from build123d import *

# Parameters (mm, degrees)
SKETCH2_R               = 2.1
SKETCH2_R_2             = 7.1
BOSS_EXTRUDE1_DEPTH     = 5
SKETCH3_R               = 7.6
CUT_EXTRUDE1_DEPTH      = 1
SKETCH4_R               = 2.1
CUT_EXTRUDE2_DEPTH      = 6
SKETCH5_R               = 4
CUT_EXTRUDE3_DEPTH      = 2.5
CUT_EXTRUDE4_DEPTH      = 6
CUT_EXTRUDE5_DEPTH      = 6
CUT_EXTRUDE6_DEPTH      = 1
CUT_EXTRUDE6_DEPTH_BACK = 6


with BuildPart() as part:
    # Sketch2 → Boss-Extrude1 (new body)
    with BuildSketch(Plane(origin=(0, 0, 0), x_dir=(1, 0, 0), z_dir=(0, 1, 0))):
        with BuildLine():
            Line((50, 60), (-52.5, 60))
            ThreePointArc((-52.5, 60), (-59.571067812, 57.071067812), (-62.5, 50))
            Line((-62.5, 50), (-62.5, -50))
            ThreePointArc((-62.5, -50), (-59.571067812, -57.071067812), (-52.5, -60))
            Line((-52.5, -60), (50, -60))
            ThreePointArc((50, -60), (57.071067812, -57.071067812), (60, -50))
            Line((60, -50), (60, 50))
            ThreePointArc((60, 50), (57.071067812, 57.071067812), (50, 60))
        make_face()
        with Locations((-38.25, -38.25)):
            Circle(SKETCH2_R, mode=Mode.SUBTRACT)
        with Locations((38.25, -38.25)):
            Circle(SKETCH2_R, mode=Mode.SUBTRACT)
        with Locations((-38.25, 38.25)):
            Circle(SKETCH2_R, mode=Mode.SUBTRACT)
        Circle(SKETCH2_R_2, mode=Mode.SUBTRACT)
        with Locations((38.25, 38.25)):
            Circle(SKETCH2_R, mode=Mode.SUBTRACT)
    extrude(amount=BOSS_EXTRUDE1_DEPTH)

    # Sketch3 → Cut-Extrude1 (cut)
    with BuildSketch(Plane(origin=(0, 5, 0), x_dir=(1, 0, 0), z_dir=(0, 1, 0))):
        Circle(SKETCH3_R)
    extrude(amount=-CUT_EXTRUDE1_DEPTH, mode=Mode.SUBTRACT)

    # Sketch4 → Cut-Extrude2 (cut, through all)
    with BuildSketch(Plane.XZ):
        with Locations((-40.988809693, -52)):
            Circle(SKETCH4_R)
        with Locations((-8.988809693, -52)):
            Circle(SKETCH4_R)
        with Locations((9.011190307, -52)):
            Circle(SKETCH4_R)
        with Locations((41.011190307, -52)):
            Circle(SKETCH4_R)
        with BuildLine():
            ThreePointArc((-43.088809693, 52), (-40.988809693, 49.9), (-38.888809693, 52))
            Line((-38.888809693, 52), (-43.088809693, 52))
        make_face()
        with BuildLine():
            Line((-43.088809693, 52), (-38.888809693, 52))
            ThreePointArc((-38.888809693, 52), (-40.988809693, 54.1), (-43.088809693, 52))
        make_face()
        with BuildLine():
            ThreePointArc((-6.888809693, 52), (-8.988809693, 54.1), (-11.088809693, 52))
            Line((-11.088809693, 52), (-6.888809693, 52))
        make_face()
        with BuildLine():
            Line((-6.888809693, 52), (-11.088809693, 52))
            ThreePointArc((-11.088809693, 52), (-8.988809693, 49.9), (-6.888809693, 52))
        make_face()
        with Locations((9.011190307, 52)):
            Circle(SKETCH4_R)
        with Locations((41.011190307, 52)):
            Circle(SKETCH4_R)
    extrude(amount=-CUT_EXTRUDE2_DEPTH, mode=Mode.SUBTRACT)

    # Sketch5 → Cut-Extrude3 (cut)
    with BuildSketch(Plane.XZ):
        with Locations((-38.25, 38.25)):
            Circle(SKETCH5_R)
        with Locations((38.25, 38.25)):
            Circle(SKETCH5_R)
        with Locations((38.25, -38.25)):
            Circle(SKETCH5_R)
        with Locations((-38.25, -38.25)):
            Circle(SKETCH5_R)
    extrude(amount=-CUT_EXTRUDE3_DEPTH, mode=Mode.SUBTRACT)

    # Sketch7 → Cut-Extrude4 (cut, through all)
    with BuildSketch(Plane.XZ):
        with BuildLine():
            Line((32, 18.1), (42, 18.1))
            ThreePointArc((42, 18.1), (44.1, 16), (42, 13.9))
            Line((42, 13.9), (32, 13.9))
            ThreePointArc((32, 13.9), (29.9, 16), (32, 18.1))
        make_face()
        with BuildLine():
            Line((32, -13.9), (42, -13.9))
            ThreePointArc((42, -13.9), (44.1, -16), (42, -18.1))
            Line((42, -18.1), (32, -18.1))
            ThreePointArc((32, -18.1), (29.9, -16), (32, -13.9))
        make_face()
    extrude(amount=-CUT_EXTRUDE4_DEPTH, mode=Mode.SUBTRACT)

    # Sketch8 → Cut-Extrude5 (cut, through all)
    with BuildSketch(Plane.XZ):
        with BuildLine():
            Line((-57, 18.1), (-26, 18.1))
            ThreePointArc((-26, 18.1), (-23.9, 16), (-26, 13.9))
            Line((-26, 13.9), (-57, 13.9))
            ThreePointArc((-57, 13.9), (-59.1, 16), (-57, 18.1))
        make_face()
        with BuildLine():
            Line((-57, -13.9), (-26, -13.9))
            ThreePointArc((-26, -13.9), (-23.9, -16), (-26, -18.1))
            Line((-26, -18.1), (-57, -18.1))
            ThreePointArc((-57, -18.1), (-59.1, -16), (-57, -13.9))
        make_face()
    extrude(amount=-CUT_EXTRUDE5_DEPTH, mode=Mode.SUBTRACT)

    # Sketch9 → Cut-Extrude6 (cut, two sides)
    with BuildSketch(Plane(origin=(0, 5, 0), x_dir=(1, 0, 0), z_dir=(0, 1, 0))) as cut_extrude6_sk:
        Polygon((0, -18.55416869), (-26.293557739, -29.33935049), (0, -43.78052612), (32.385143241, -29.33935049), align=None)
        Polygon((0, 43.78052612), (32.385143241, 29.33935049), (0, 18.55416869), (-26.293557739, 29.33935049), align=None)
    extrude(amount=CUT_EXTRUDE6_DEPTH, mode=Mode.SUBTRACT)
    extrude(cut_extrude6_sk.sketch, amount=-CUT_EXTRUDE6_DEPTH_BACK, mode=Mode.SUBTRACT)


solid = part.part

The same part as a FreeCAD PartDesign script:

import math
import FreeCAD as App
import Part
import Sketcher
from FreeCAD import Vector

doc = App.newDocument("Part")
body = doc.addObject("PartDesign::Body", "Body")

sketch1 = body.newObject("Sketcher::SketchObject", "Sketch")
sketch1.AttachmentSupport = (doc.getObject("XZ_Plane"), [""])
sketch1.MapMode = "FlatFace"
sketch1.addGeometry(Part.LineSegment(Vector(50, -60, 0), Vector(-52.5, -60, 0)), False)
sketch1.addGeometry(Part.ArcOfCircle(Part.Circle(Vector(-52.5, -50, 0), Vector(0, 0, 1), 10), math.radians(180), math.radians(270)), False)
sketch1.addGeometry(Part.LineSegment(Vector(-62.5, -50, 0), Vector(-62.5, 50, 0)), False)
sketch1.addGeometry(Part.ArcOfCircle(Part.Circle(Vector(-52.5, 50, 0), Vector(0, 0, 1), 10), math.radians(90), math.radians(180)), False)
sketch1.addGeometry(Part.LineSegment(Vector(-52.5, 60, 0), Vector(50, 60, 0)), False)
sketch1.addGeometry(Part.ArcOfCircle(Part.Circle(Vector(50, 50, 0), Vector(0, 0, 1), 10), math.radians(0), math.radians(90)), False)
sketch1.addGeometry(Part.LineSegment(Vector(60, 50, 0), Vector(60, -50, 0)), False)
sketch1.addGeometry(Part.ArcOfCircle(Part.Circle(Vector(50, -50, 0), Vector(0, 0, 1), 10), math.radians(-90), math.radians(0)), False)
sketch1.addGeometry(Part.Circle(Vector(-38.2, 38.2, 0), Vector(0, 0, 1), 2.1), False)
sketch1.addGeometry(Part.Circle(Vector(0, 0, 0), Vector(0, 0, 1), 7.1), False)
sketch1.addGeometry(Part.Circle(Vector(38.2, 38.2, 0), Vector(0, 0, 1), 2.1), False)
sketch1.addGeometry(Part.Circle(Vector(-38.2, -38.2, 0), Vector(0, 0, 1), 2.1), False)
sketch1.addGeometry(Part.Circle(Vector(38.2, -38.2, 0), Vector(0, 0, 1), 2.1), False)
sketch1.addConstraint(Sketcher.Constraint("Tangent", 0, 2, 1, 2))
sketch1.addConstraint(Sketcher.Constraint("Tangent", 1, 1, 2, 1))
sketch1.addConstraint(Sketcher.Constraint("Tangent", 2, 2, 3, 2))
sketch1.addConstraint(Sketcher.Constraint("Tangent", 3, 1, 4, 1))
sketch1.addConstraint(Sketcher.Constraint("Tangent", 4, 2, 5, 2))
sketch1.addConstraint(Sketcher.Constraint("Tangent", 5, 1, 6, 1))
sketch1.addConstraint(Sketcher.Constraint("Tangent", 6, 2, 7, 2))
sketch1.addConstraint(Sketcher.Constraint("Tangent", 7, 1, 0, 1))
sketch1.addConstraint(Sketcher.Constraint("Horizontal", 0))
sketch1.addConstraint(Sketcher.Constraint("Vertical", 2))
sketch1.addConstraint(Sketcher.Constraint("Horizontal", 4))
sketch1.addConstraint(Sketcher.Constraint("Vertical", 6))
sketch1.addConstraint(Sketcher.Constraint("Coincident", 9, 3, -1, 1))
sketch1.addConstraint(Sketcher.Constraint("Equal", 1, 3))
sketch1.addConstraint(Sketcher.Constraint("Equal", 3, 5))
sketch1.addConstraint(Sketcher.Constraint("Equal", 5, 7))
sketch1.addConstraint(Sketcher.Constraint("Equal", 8, 10))
sketch1.addConstraint(Sketcher.Constraint("Equal", 10, 11))
sketch1.addConstraint(Sketcher.Constraint("Equal", 11, 12))
sketch1.addConstraint(Sketcher.Constraint("Symmetric", 10, 3, 11, 3, -1, 1))
sketch1.addConstraint(Sketcher.Constraint("Symmetric", 8, 3, 12, 3, -1, 1))
sketch1.addConstraint(Sketcher.Constraint("Symmetric", 8, 3, 10, 3, -2))
sketch1.addConstraint(Sketcher.Constraint("Radius", 1, 10.0))
sketch1.addConstraint(Sketcher.Constraint("Diameter", 8, 4.2))
sketch1.addConstraint(Sketcher.Constraint("Diameter", 9, 14.2))
sketch1.addConstraint(Sketcher.Constraint("DistanceY", 2, 1, 2, 2, 100.0))
sketch1.addConstraint(Sketcher.Constraint("DistanceX", 0, 2, 0, 1, 102.5))
sketch1.addConstraint(Sketcher.Constraint("DistanceY", 1, 3, -1, 1, 50.0))
sketch1.addConstraint(Sketcher.Constraint("DistanceX", -1, 1, 5, 3, 50.0))
sketch1.addConstraint(Sketcher.Constraint("DistanceX", 8, 3, 10, 3, 76.5))
sketch1.addConstraint(Sketcher.Constraint("DistanceY", 11, 3, 8, 3, 76.5))
pad1 = body.newObject("PartDesign::Pad", "Pad")
pad1.Profile = sketch1
pad1.Length = 5
pad1.Reversed = True

sketch2 = body.newObject("Sketcher::SketchObject", "Sketch001")
sketch2.AttachmentSupport = (doc.getObject("XZ_Plane"), [""])
sketch2.MapMode = "FlatFace"
sketch2.AttachmentOffset = App.Placement(Vector(0, 0, -5), App.Rotation())
sketch2.addGeometry(Part.Circle(Vector(0, 0, 0), Vector(0, 0, 1), 8), False)
sketch2.addConstraint(Sketcher.Constraint("Coincident", 0, 3, -1, 1))
sketch2.addConstraint(Sketcher.Constraint("Diameter", 0, 15.2))
pocket1 = body.newObject("PartDesign::Pocket", "Pocket")
pocket1.Profile = sketch2
pocket1.Length = 1
pocket1.Reversed = True

sketch3 = body.newObject("Sketcher::SketchObject", "Sketch002")
sketch3.AttachmentSupport = (doc.getObject("XZ_Plane"), [""])
sketch3.MapMode = "FlatFace"
sketch3.addGeometry(Part.Circle(Vector(-41, -52, 0), Vector(0, 0, 1), 2.1), False)
sketch3.addGeometry(Part.Circle(Vector(-9, -52, 0), Vector(0, 0, 1), 2.1), False)
sketch3.addGeometry(Part.Circle(Vector(9, -52, 0), Vector(0, 0, 1), 2.1), False)
sketch3.addGeometry(Part.Circle(Vector(41, -52, 0), Vector(0, 0, 1), 2.1), False)
sketch3.addGeometry(Part.Circle(Vector(-41, 52, 0), Vector(0, 0, 1), 2.1), False)
sketch3.addGeometry(Part.Circle(Vector(-9, 52, 0), Vector(0, 0, 1), 2.1), False)
sketch3.addGeometry(Part.Circle(Vector(9, 52, 0), Vector(0, 0, 1), 2.1), False)
sketch3.addGeometry(Part.Circle(Vector(41, 52, 0), Vector(0, 0, 1), 2.1), False)
sketch3.addConstraint(Sketcher.Constraint("Equal", 0, 1))
sketch3.addConstraint(Sketcher.Constraint("Equal", 1, 2))
sketch3.addConstraint(Sketcher.Constraint("Equal", 2, 3))
sketch3.addConstraint(Sketcher.Constraint("Equal", 3, 4))
sketch3.addConstraint(Sketcher.Constraint("Equal", 4, 5))
sketch3.addConstraint(Sketcher.Constraint("Equal", 5, 6))
sketch3.addConstraint(Sketcher.Constraint("Equal", 6, 7))
sketch3.addConstraint(Sketcher.Constraint("Symmetric", 0, 3, 4, 3, -1))
sketch3.addConstraint(Sketcher.Constraint("Symmetric", 1, 3, 5, 3, -1))
sketch3.addConstraint(Sketcher.Constraint("Symmetric", 2, 3, 6, 3, -1))
sketch3.addConstraint(Sketcher.Constraint("Symmetric", 3, 3, 7, 3, -1))
sketch3.addConstraint(Sketcher.Constraint("Horizontal", 0, 3, 1, 3))
sketch3.addConstraint(Sketcher.Constraint("Horizontal", 1, 3, 2, 3))
sketch3.addConstraint(Sketcher.Constraint("Horizontal", 2, 3, 3, 3))
sketch3.addConstraint(Sketcher.Constraint("Diameter", 0, 4.2))
sketch3.addConstraint(Sketcher.Constraint("DistanceY", 0, 3, -1, 1, 52.0))
sketch3.addConstraint(Sketcher.Constraint("DistanceX", 0, 3, 1, 3, 32.0))
sketch3.addConstraint(Sketcher.Constraint("DistanceX", 1, 3, 2, 3, 18.0))
sketch3.addConstraint(Sketcher.Constraint("DistanceX", 2, 3, 3, 3, 32.0))
sketch3.addConstraint(Sketcher.Constraint("DistanceX", 0, 3, -1, 1, 40.98881))
pocket2 = body.newObject("PartDesign::Pocket", "Pocket001")
pocket2.Profile = sketch3
pocket2.Type = "ThroughAll"

sketch4 = body.newObject("Sketcher::SketchObject", "Sketch003")
sketch4.AttachmentSupport = (doc.getObject("XZ_Plane"), [""])
sketch4.MapMode = "FlatFace"
sketch4.addGeometry(Part.Circle(Vector(-38.2, 38.2, 0), Vector(0, 0, 1), 4), False)
sketch4.addGeometry(Part.Circle(Vector(38.2, 38.2, 0), Vector(0, 0, 1), 4), False)
sketch4.addGeometry(Part.Circle(Vector(38.2, -38.2, 0), Vector(0, 0, 1), 4), False)
sketch4.addGeometry(Part.Circle(Vector(-38.2, -38.2, 0), Vector(0, 0, 1), 4), False)
sketch4.addConstraint(Sketcher.Constraint("Equal", 0, 1))
sketch4.addConstraint(Sketcher.Constraint("Equal", 1, 2))
sketch4.addConstraint(Sketcher.Constraint("Equal", 2, 3))
sketch4.addConstraint(Sketcher.Constraint("Symmetric", 0, 3, 2, 3, -1, 1))
sketch4.addConstraint(Sketcher.Constraint("Symmetric", 1, 3, 3, 3, -1, 1))
sketch4.addConstraint(Sketcher.Constraint("Symmetric", 0, 3, 1, 3, -2))
sketch4.addConstraint(Sketcher.Constraint("Diameter", 0, 8.0))
sketch4.addConstraint(Sketcher.Constraint("DistanceX", 0, 3, 1, 3, 76.5))
sketch4.addConstraint(Sketcher.Constraint("DistanceY", 2, 3, 1, 3, 76.5))
pocket3 = body.newObject("PartDesign::Pocket", "Pocket002")
pocket3.Profile = sketch4
pocket3.Length = 2.5

sketch5 = body.newObject("Sketcher::SketchObject", "Sketch004")
sketch5.AttachmentSupport = (doc.getObject("XZ_Plane"), [""])
sketch5.MapMode = "FlatFace"
sketch5.addGeometry(Part.LineSegment(Vector(42, 18.1, 0), Vector(32, 18.1, 0)), False)
sketch5.addGeometry(Part.ArcOfCircle(Part.Circle(Vector(32, 16, 0), Vector(0, 0, 1), 2.1), math.radians(90), math.radians(270)), False)
sketch5.addGeometry(Part.LineSegment(Vector(32, 13.9, 0), Vector(42, 13.9, 0)), False)
sketch5.addGeometry(Part.ArcOfCircle(Part.Circle(Vector(42, 16, 0), Vector(0, 0, 1), 2.1), math.radians(-90), math.radians(90)), False)
sketch5.addGeometry(Part.LineSegment(Vector(42, -13.9, 0), Vector(32, -13.9, 0)), False)
sketch5.addGeometry(Part.ArcOfCircle(Part.Circle(Vector(32, -16, 0), Vector(0, 0, 1), 2.1), math.radians(90), math.radians(270)), False)
sketch5.addGeometry(Part.LineSegment(Vector(32, -18.1, 0), Vector(42, -18.1, 0)), False)
sketch5.addGeometry(Part.ArcOfCircle(Part.Circle(Vector(42, -16, 0), Vector(0, 0, 1), 2.1), math.radians(-90), math.radians(90)), False)
sketch5.addConstraint(Sketcher.Constraint("Tangent", 0, 2, 1, 1))
sketch5.addConstraint(Sketcher.Constraint("Tangent", 1, 2, 2, 1))
sketch5.addConstraint(Sketcher.Constraint("Tangent", 2, 2, 3, 1))
sketch5.addConstraint(Sketcher.Constraint("Tangent", 3, 2, 0, 1))
sketch5.addConstraint(Sketcher.Constraint("Tangent", 4, 2, 5, 1))
sketch5.addConstraint(Sketcher.Constraint("Tangent", 5, 2, 6, 1))
sketch5.addConstraint(Sketcher.Constraint("Tangent", 6, 2, 7, 1))
sketch5.addConstraint(Sketcher.Constraint("Tangent", 7, 2, 4, 1))
sketch5.addConstraint(Sketcher.Constraint("Horizontal", 0))
sketch5.addConstraint(Sketcher.Constraint("Horizontal", 2))
sketch5.addConstraint(Sketcher.Constraint("Horizontal", 4))
sketch5.addConstraint(Sketcher.Constraint("Horizontal", 6))
sketch5.addConstraint(Sketcher.Constraint("Equal", 3, 5))
sketch5.addConstraint(Sketcher.Constraint("Symmetric", 1, 3, 5, 3, -1))
sketch5.addConstraint(Sketcher.Constraint("Vertical", 3, 3, 7, 3))
sketch5.addConstraint(Sketcher.Constraint("Radius", 1, 2.1))
sketch5.addConstraint(Sketcher.Constraint("DistanceX", 0, 2, 0, 1, 10.0))
sketch5.addConstraint(Sketcher.Constraint("DistanceX", -1, 1, 1, 3, 32.0))
sketch5.addConstraint(Sketcher.Constraint("DistanceY", -1, 1, 1, 3, 16.0))
pocket4 = body.newObject("PartDesign::Pocket", "Pocket003")
pocket4.Profile = sketch5
pocket4.Type = "ThroughAll"

sketch6 = body.newObject("Sketcher::SketchObject", "Sketch005")
sketch6.AttachmentSupport = (doc.getObject("XZ_Plane"), [""])
sketch6.MapMode = "FlatFace"
sketch6.addGeometry(Part.LineSegment(Vector(-26, 18.1, 0), Vector(-57, 18.1, 0)), False)
sketch6.addGeometry(Part.ArcOfCircle(Part.Circle(Vector(-57, 16, 0), Vector(0, 0, 1), 2.1), math.radians(90), math.radians(270)), False)
sketch6.addGeometry(Part.LineSegment(Vector(-57, 13.9, 0), Vector(-26, 13.9, 0)), False)
sketch6.addGeometry(Part.ArcOfCircle(Part.Circle(Vector(-26, 16, 0), Vector(0, 0, 1), 2.1), math.radians(-90), math.radians(90)), False)
sketch6.addGeometry(Part.LineSegment(Vector(-26, -13.9, 0), Vector(-57, -13.9, 0)), False)
sketch6.addGeometry(Part.ArcOfCircle(Part.Circle(Vector(-57, -16, 0), Vector(0, 0, 1), 2.1), math.radians(90), math.radians(270)), False)
sketch6.addGeometry(Part.LineSegment(Vector(-57, -18.1, 0), Vector(-26, -18.1, 0)), False)
sketch6.addGeometry(Part.ArcOfCircle(Part.Circle(Vector(-26, -16, 0), Vector(0, 0, 1), 2.1), math.radians(-90), math.radians(90)), False)
sketch6.addConstraint(Sketcher.Constraint("Tangent", 0, 2, 1, 1))
sketch6.addConstraint(Sketcher.Constraint("Tangent", 1, 2, 2, 1))
sketch6.addConstraint(Sketcher.Constraint("Tangent", 2, 2, 3, 1))
sketch6.addConstraint(Sketcher.Constraint("Tangent", 3, 2, 0, 1))
sketch6.addConstraint(Sketcher.Constraint("Tangent", 4, 2, 5, 1))
sketch6.addConstraint(Sketcher.Constraint("Tangent", 5, 2, 6, 1))
sketch6.addConstraint(Sketcher.Constraint("Tangent", 6, 2, 7, 1))
sketch6.addConstraint(Sketcher.Constraint("Tangent", 7, 2, 4, 1))
sketch6.addConstraint(Sketcher.Constraint("Horizontal", 0))
sketch6.addConstraint(Sketcher.Constraint("Horizontal", 2))
sketch6.addConstraint(Sketcher.Constraint("Horizontal", 4))
sketch6.addConstraint(Sketcher.Constraint("Horizontal", 6))
sketch6.addConstraint(Sketcher.Constraint("Equal", 3, 5))
sketch6.addConstraint(Sketcher.Constraint("Symmetric", 1, 3, 5, 3, -1))
sketch6.addConstraint(Sketcher.Constraint("Vertical", 3, 3, 7, 3))
sketch6.addConstraint(Sketcher.Constraint("Radius", 1, 2.1))
sketch6.addConstraint(Sketcher.Constraint("DistanceX", 0, 2, 0, 1, 31.0))
sketch6.addConstraint(Sketcher.Constraint("DistanceX", 1, 3, -1, 1, 57.0))
sketch6.addConstraint(Sketcher.Constraint("DistanceY", -1, 1, 1, 3, 16.0))
pocket5 = body.newObject("PartDesign::Pocket", "Pocket004")
pocket5.Profile = sketch6
pocket5.Type = "ThroughAll"

sketch7 = body.newObject("Sketcher::SketchObject", "Sketch006")
sketch7.AttachmentSupport = (doc.getObject("XZ_Plane"), [""])
sketch7.MapMode = "FlatFace"
sketch7.AttachmentOffset = App.Placement(Vector(0, 0, -5), App.Rotation())
sketch7.addGeometry(Part.LineSegment(Vector(0, 19, 0), Vector(-26, 29, 0)), False)
sketch7.addGeometry(Part.LineSegment(Vector(-26, 29, 0), Vector(0, 44, 0)), False)
sketch7.addGeometry(Part.LineSegment(Vector(0, 44, 0), Vector(32, 29, 0)), False)
sketch7.addGeometry(Part.LineSegment(Vector(32, 29, 0), Vector(0, 19, 0)), False)
sketch7.addGeometry(Part.LineSegment(Vector(32, -29, 0), Vector(0, -44, 0)), False)
sketch7.addGeometry(Part.LineSegment(Vector(0, -44, 0), Vector(-26, -29, 0)), False)
sketch7.addGeometry(Part.LineSegment(Vector(-26, -29, 0), Vector(0, -19, 0)), False)
sketch7.addGeometry(Part.LineSegment(Vector(0, -19, 0), Vector(32, -29, 0)), False)
sketch7.addConstraint(Sketcher.Constraint("Coincident", 0, 2, 1, 1))
sketch7.addConstraint(Sketcher.Constraint("Coincident", 1, 2, 2, 1))
sketch7.addConstraint(Sketcher.Constraint("Coincident", 2, 2, 3, 1))
sketch7.addConstraint(Sketcher.Constraint("Coincident", 3, 2, 0, 1))
sketch7.addConstraint(Sketcher.Constraint("Coincident", 4, 2, 5, 1))
sketch7.addConstraint(Sketcher.Constraint("Coincident", 5, 2, 6, 1))
sketch7.addConstraint(Sketcher.Constraint("Coincident", 6, 2, 7, 1))
sketch7.addConstraint(Sketcher.Constraint("Coincident", 7, 2, 4, 1))
sketch7.addConstraint(Sketcher.Constraint("Symmetric", 1, 2, 4, 2, -1, 1))
sketch7.addConstraint(Sketcher.Constraint("Symmetric", 3, 2, 6, 2, -1, 1))
sketch7.addConstraint(Sketcher.Constraint("Symmetric", 0, 2, 5, 2, -1))
sketch7.addConstraint(Sketcher.Constraint("Symmetric", 2, 2, 7, 2, -1))
sketch7.addConstraint(Sketcher.Constraint("PointOnObject", 1, 2, -2))
sketch7.addConstraint(Sketcher.Constraint("PointOnObject", 3, 2, -2))
sketch7.addConstraint(Sketcher.Constraint("Horizontal", 0, 2, 2, 2))
sketch7.addConstraint(Sketcher.Constraint("DistanceX", 0, 2, 2, 2, 58.678701))
sketch7.addConstraint(Sketcher.Constraint("DistanceY", 5, 2, 0, 2, 58.678701))
sketch7.addConstraint(Sketcher.Constraint("Distance", 0, 28.419559))
sketch7.addConstraint(Sketcher.Constraint("Distance", 2, 35.459062))
sketch7.addConstraint(Sketcher.Constraint("Distance", 3, 34.13382))
pocket6 = body.newObject("PartDesign::Pocket", "Pocket005")
pocket6.Profile = sketch7
pocket6.Type = "ThroughAll"
pocket6.Midplane = True

doc.recompute()
